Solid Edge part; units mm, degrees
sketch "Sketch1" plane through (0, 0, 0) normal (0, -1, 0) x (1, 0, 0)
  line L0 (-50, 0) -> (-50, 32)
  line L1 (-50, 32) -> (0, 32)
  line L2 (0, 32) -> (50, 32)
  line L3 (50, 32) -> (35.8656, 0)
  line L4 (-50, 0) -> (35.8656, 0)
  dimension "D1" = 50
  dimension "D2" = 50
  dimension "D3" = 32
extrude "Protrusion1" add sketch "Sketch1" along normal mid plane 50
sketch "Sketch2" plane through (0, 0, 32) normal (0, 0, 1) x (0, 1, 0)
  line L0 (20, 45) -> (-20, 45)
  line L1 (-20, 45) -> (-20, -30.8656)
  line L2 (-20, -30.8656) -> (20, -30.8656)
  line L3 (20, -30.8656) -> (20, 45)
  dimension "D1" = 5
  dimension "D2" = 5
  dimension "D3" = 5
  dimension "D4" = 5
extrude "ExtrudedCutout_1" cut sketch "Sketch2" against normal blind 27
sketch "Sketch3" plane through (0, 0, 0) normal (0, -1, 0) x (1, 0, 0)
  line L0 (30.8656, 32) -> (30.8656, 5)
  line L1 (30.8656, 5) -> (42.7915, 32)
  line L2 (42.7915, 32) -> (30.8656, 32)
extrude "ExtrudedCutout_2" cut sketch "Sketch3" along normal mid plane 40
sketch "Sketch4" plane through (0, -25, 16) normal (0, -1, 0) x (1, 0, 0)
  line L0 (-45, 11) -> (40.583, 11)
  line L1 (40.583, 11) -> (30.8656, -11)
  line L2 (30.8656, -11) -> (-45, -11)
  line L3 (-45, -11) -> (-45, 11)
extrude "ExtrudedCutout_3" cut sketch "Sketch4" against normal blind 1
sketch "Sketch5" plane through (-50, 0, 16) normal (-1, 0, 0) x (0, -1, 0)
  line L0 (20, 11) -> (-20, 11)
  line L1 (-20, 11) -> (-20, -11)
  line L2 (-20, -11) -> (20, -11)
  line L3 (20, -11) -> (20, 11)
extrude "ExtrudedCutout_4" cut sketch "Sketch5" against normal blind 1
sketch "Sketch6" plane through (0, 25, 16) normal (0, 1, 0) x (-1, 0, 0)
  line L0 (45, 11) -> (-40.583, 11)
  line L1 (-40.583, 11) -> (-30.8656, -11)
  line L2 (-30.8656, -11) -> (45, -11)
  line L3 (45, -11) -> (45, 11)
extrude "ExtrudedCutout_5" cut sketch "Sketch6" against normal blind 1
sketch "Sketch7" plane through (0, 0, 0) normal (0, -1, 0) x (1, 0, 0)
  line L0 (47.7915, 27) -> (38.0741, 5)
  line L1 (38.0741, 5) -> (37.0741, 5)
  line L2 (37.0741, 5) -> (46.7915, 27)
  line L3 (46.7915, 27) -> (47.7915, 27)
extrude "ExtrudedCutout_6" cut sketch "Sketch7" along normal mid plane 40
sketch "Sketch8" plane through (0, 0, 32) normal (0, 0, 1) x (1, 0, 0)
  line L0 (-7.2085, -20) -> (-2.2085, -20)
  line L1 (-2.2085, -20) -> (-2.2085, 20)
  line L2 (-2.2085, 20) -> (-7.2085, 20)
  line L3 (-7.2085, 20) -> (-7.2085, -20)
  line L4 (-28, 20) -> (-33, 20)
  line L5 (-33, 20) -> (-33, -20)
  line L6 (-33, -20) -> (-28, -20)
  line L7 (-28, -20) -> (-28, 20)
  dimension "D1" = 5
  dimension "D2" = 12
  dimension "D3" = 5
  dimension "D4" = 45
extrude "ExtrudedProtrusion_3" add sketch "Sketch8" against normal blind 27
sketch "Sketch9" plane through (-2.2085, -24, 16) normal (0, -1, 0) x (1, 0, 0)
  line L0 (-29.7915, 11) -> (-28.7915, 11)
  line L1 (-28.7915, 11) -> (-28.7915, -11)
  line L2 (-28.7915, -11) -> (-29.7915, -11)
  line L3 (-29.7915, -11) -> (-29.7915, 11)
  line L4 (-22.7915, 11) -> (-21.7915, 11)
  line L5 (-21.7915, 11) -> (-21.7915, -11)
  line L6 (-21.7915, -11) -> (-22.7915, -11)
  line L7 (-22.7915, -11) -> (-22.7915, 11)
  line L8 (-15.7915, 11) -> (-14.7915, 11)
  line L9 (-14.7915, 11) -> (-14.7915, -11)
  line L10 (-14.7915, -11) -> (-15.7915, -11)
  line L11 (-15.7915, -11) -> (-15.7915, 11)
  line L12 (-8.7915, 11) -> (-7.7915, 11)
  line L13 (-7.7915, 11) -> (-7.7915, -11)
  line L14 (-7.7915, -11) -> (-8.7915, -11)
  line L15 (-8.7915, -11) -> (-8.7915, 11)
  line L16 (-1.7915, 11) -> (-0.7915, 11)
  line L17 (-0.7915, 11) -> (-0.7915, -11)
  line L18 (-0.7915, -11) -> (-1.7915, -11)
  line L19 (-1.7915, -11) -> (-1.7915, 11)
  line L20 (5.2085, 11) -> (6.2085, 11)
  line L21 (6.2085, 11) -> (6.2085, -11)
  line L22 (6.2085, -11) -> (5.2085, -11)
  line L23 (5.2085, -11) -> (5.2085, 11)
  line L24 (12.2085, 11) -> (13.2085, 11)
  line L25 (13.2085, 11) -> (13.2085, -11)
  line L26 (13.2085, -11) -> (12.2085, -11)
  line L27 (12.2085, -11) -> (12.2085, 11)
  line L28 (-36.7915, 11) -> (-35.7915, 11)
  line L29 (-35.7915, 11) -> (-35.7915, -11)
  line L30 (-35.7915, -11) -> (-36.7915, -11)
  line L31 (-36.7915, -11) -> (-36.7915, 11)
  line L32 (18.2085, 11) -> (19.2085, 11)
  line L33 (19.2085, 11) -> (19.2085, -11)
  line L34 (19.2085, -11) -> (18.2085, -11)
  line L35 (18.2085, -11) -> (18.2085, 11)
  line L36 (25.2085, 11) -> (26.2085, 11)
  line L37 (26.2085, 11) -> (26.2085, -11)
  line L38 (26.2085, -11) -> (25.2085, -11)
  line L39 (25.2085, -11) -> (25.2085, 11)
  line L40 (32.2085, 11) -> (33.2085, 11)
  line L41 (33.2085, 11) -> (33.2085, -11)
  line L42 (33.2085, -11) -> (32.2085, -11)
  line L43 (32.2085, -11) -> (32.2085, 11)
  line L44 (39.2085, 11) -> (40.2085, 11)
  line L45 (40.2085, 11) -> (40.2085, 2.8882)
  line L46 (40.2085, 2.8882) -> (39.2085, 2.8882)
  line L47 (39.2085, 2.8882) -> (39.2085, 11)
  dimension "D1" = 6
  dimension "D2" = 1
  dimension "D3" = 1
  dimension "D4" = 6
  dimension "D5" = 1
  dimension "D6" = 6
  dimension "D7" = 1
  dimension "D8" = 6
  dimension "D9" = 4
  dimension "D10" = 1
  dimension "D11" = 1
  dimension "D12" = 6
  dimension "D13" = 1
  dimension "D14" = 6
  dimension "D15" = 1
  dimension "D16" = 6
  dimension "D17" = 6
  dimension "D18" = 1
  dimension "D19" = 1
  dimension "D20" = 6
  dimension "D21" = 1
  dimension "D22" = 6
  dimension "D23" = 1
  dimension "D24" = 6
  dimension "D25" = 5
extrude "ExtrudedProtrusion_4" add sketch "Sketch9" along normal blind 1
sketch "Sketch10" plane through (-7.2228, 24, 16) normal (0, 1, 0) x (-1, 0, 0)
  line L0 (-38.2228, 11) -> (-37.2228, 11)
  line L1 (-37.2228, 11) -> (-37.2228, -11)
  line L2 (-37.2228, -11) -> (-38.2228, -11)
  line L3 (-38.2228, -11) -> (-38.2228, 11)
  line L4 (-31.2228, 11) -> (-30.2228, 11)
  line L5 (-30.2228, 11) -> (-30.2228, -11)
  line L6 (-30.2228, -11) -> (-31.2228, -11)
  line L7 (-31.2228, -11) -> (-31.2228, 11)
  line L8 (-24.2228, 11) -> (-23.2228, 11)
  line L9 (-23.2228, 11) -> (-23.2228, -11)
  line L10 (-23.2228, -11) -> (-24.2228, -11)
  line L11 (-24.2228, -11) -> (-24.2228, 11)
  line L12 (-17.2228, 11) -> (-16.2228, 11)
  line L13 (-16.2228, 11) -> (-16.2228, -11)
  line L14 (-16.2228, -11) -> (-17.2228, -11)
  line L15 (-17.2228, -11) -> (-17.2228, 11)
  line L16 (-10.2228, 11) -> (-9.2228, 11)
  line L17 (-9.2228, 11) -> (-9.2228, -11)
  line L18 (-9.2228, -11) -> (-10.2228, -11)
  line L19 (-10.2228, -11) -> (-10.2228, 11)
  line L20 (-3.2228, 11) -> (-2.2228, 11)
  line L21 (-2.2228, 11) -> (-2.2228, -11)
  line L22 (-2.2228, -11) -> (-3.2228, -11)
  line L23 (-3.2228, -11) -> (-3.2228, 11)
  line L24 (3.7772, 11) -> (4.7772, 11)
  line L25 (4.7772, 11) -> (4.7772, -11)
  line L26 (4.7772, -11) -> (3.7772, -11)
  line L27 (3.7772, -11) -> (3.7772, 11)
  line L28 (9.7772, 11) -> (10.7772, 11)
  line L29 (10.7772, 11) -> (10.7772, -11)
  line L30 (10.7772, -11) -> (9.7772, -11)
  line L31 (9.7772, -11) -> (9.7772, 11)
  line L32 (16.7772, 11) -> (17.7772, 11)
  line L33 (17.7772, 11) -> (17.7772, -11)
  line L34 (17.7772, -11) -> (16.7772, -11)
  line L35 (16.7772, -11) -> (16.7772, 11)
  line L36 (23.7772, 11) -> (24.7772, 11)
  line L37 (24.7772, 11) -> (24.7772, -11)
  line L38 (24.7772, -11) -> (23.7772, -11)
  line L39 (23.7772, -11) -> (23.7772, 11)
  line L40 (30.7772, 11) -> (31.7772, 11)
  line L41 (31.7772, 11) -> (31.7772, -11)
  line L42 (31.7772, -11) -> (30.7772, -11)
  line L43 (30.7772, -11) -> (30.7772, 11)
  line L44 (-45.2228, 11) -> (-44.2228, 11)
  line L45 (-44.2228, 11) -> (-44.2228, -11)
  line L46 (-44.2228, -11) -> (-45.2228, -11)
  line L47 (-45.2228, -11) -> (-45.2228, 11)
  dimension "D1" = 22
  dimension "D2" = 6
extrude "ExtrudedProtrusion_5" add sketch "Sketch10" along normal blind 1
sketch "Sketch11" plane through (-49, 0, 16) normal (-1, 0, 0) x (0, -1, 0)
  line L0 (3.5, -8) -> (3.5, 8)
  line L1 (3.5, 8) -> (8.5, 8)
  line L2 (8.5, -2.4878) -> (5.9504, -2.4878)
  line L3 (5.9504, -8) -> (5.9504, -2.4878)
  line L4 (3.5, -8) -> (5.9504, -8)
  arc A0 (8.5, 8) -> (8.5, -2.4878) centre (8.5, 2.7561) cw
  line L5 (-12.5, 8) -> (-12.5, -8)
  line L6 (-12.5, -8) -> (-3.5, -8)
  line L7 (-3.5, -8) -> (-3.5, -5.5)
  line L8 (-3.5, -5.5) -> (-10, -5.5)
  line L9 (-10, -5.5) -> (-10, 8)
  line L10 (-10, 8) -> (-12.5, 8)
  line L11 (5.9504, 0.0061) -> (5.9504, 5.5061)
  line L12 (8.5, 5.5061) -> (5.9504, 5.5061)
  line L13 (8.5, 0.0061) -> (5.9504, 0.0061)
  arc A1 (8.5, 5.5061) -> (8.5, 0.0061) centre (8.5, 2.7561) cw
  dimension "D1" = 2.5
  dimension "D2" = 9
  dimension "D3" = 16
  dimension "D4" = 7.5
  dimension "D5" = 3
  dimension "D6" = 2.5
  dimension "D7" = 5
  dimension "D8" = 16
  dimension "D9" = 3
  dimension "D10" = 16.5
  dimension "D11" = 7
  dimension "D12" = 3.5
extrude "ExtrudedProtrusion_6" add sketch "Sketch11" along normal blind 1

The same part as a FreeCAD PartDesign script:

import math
import FreeCAD as App
import Part
import Sketcher

V = App.Vector
Q = App.Units.Quantity

doc = App.newDocument("Part")
body = doc.addObject("PartDesign::Body", "Body")

# Sketch on XZ plane
sketch1 = doc.addObject("Sketcher::SketchObject", "Sketch")
body.addObject(sketch1)
sketch1.AttachmentSupport = (doc.XZ_Plane, [""])
sketch1.MapMode = "FlatFace"
sketch1.addGeometry(Part.LineSegment(V(-50, 32, 0), V(-50, 0, 0)), False)
sketch1.addGeometry(Part.LineSegment(V(-50, 0, 0), V(36, 0, 0)), False)
sketch1.addGeometry(Part.LineSegment(V(36, 0, 0), V(50, 32, 0)), False)
sketch1.addGeometry(Part.LineSegment(V(50, 32, 0), V(-50, 32, 0)), False)
sketch1.addConstraint(Sketcher.Constraint("Coincident", 0, 2, 1, 1))
sketch1.addConstraint(Sketcher.Constraint("Coincident", 1, 2, 2, 1))
sketch1.addConstraint(Sketcher.Constraint("Coincident", 2, 2, 3, 1))
sketch1.addConstraint(Sketcher.Constraint("Coincident", 3, 2, 0, 1))
sketch1.addConstraint(Sketcher.Constraint("Vertical", 0))
sketch1.addConstraint(Sketcher.Constraint("Horizontal", 1))
sketch1.addConstraint(Sketcher.Constraint("Horizontal", 3))
sketch1.addConstraint(Sketcher.Constraint("PointOnObject", 0, 2, -1))
sketch1.addConstraint(Sketcher.Constraint("DistanceX", 0, 2, -1, 1, 50.0))
sketch1.addConstraint(Sketcher.Constraint("DistanceX", -1, 1, 2, 2, 50.0))
sketch1.addConstraint(Sketcher.Constraint("DistanceY", 0, 2, 0, 1, 32.0))
sketch1.addConstraint(Sketcher.Constraint("Angle", 2, Q("66.169 deg")))
pad1 = doc.addObject("PartDesign::Pad", "Pad")
body.addObject(pad1)
pad1.Profile = sketch1
pad1.Length = 50
pad1.Midplane = True

# Sketch on XY plane
sketch2 = doc.addObject("Sketcher::SketchObject", "Sketch001")
body.addObject(sketch2)
sketch2.AttachmentSupport = (doc.XY_Plane, [""])
sketch2.MapMode = "FlatFace"
sketch2.AttachmentOffset = App.Placement(V(0, 0, 32), App.Rotation())
sketch2.addGeometry(Part.LineSegment(V(31, 20, 0), V(-45, 20, 0)), False)
sketch2.addGeometry(Part.LineSegment(V(-45, 20, 0), V(-45, -20, 0)), False)
sketch2.addGeometry(Part.LineSegment(V(-45, -20, 0), V(31, -20, 0)), False)
sketch2.addGeometry(Part.LineSegment(V(31, -20, 0), V(31, 20, 0)), False)
sketch2.addConstraint(Sketcher.Constraint("Coincident", 0, 2, 1, 1))
sketch2.addConstraint(Sketcher.Constraint("Coincident", 1, 2, 2, 1))
sketch2.addConstraint(Sketcher.Constraint("Coincident", 2, 2, 3, 1))
sketch2.addConstraint(Sketcher.Constraint("Coincident", 3, 2, 0, 1))
sketch2.addConstraint(Sketcher.Constraint("Horizontal", 0))
sketch2.addConstraint(Sketcher.Constraint("Vertical", 1))
sketch2.addConstraint(Sketcher.Constraint("Horizontal", 2))
sketch2.addConstraint(Sketcher.Constraint("Vertical", 3))
sketch2.addConstraint(Sketcher.Constraint("DistanceY", -1, 1, 0, 2, 20.0))
sketch2.addConstraint(Sketcher.Constraint("DistanceY", 1, 2, -1, 1, 20.0))
sketch2.addConstraint(Sketcher.Constraint("DistanceX", 0, 2, -1, 1, 45.0))
sketch2.addConstraint(Sketcher.Constraint("DistanceX", 0, 2, 0, 1, 75.8656))
pocket1 = doc.addObject("PartDesign::Pocket", "Pocket")
body.addObject(pocket1)
pocket1.Profile = sketch2
pocket1.Length = 27

# Sketch on XZ plane
sketch3 = doc.addObject("Sketcher::SketchObject", "Sketch002")
body.addObject(sketch3)
sketch3.AttachmentSupport = (doc.XZ_Plane, [""])
sketch3.MapMode = "FlatFace"
sketch3.addGeometry(Part.LineSegment(V(43, 32, 0), V(31, 32, 0)), False)
sketch3.addGeometry(Part.LineSegment(V(31, 32, 0), V(31, 5, 0)), False)
sketch3.addGeometry(Part.LineSegment(V(31, 5, 0), V(43, 32, 0)), False)
sketch3.addConstraint(Sketcher.Constraint("Coincident", 0, 2, 1, 1))
sketch3.addConstraint(Sketcher.Constraint("Coincident", 1, 2, 2, 1))
sketch3.addConstraint(Sketcher.Constraint("Coincident", 2, 2, 0, 1))
sketch3.addConstraint(Sketcher.Constraint("Horizontal", 0))
sketch3.addConstraint(Sketcher.Constraint("Vertical", 1))
sketch3.addConstraint(Sketcher.Constraint("DistanceY", 1, 2, 1, 1, 27.0))
sketch3.addConstraint(Sketcher.Constraint("DistanceY", -1, 1, 0, 2, 32.0))
sketch3.addConstraint(Sketcher.Constraint("Angle", 2, Q("66.169 deg")))
sketch3.addConstraint(Sketcher.Constraint("DistanceX", -1, 1, 0, 2, 30.8656))
pocket2 = doc.addObject("PartDesign::Pocket", "Pocket001")
body.addObject(pocket2)
pocket2.Profile = sketch3
pocket2.Length = 40
pocket2.Midplane = True

# Sketch on XZ plane
sketch4 = doc.addObject("Sketcher::SketchObject", "Sketch003")
body.addObject(sketch4)
sketch4.AttachmentSupport = (doc.XZ_Plane, [""])
sketch4.MapMode = "FlatFace"
sketch4.AttachmentOffset = App.Placement(V(0, 0, 25), App.Rotation())
sketch4.addGeometry(Part.LineSegment(V(41, 27, 0), V(-45, 27, 0)), False)
sketch4.addGeometry(Part.LineSegment(V(-45, 27, 0), V(-45, 5, 0)), False)
sketch4.addGeometry(Part.LineSegment(V(-45, 5, 0), V(31, 5, 0)), False)
sketch4.addGeometry(Part.LineSegment(V(31, 5, 0), V(41, 27, 0)), False)
sketch4.addConstraint(Sketcher.Constraint("Coincident", 0, 2, 1, 1))
sketch4.addConstraint(Sketcher.Constraint("Coincident", 1, 2, 2, 1))
sketch4.addConstraint(Sketcher.Constraint("Coincident", 2, 2, 3, 1))
sketch4.addConstraint(Sketcher.Constraint("Coincident", 3, 2, 0, 1))
sketch4.addConstraint(Sketcher.Constraint("Horizontal", 0))
sketch4.addConstraint(Sketcher.Constraint("Vertical", 1))
sketch4.addConstraint(Sketcher.Constraint("Horizontal", 2))
sketch4.addConstraint(Sketcher.Constraint("DistanceY", 1, 2, 1, 1, 22.0))
sketch4.addConstraint(Sketcher.Constraint("DistanceX", 0, 2, -1, 1, 45.0))
sketch4.addConstraint(Sketcher.Constraint("DistanceY", -1, 1, 0, 2, 27.0))
sketch4.addConstraint(Sketcher.Constraint("Angle", 3, Q("66.169 deg")))
sketch4.addConstraint(Sketcher.Constraint("DistanceX", 0, 2, 0, 1, 85.583))
pocket3 = doc.addObject("PartDesign::Pocket", "Pocket002")
body.addObject(pocket3)
pocket3.Profile = sketch4
pocket3.Length = 1

# Sketch on YZ plane
sketch5 = doc.addObject("Sketcher::SketchObject", "Sketch004")
body.addObject(sketch5)
sketch5.AttachmentSupport = (doc.YZ_Plane, [""])
sketch5.MapMode = "FlatFace"
sketch5.AttachmentOffset = App.Placement(V(0, 0, -50), App.Rotation())
sketch5.addGeometry(Part.LineSegment(V(-20, 5, 0), V(-20, 27, 0)), False)
sketch5.addGeometry(Part.LineSegment(V(-20, 27, 0), V(20, 27, 0)), False)
sketch5.addGeometry(Part.LineSegment(V(20, 27, 0), V(20, 5, 0)), False)
sketch5.addGeometry(Part.LineSegment(V(20, 5, 0), V(-20, 5, 0)), False)
sketch5.addConstraint(Sketcher.Constraint("Coincident", 0, 2, 1, 1))
sketch5.addConstraint(Sketcher.Constraint("Coincident", 1, 2, 2, 1))
sketch5.addConstraint(Sketcher.Constraint("Coincident", 2, 2, 3, 1))
sketch5.addConstraint(Sketcher.Constraint("Coincident", 3, 2, 0, 1))
sketch5.addConstraint(Sketcher.Constraint("Vertical", 0))
sketch5.addConstraint(Sketcher.Constraint("Horizontal", 1))
sketch5.addConstraint(Sketcher.Constraint("Vertical", 2))
sketch5.addConstraint(Sketcher.Constraint("Horizontal", 3))
sketch5.addConstraint(Sketcher.Constraint("DistanceX", 1, 1, 1, 2, 40.0))
sketch5.addConstraint(Sketcher.Constraint("DistanceY", 0, 1, 0, 2, 22.0))
sketch5.addConstraint(Sketcher.Constraint("DistanceX", 0, 2, -1, 1, 20.0))
sketch5.addConstraint(Sketcher.Constraint("DistanceY", -1, 1, 0, 2, 27.0))
pocket4 = doc.addObject("PartDesign::Pocket", "Pocket003")
body.addObject(pocket4)
pocket4.Profile = sketch5
pocket4.Length = 1
pocket4.Reversed = True

# Sketch on XZ plane
sketch6 = doc.addObject("Sketcher::SketchObject", "Sketch005")
body.addObject(sketch6)
sketch6.AttachmentSupport = (doc.XZ_Plane, [""])
sketch6.MapMode = "FlatFace"
sketch6.AttachmentOffset = App.Placement(V(0, 0, -25), App.Rotation())
sketch6.addGeometry(Part.LineSegment(V(-45, 5, 0), V(-45, 27, 0)), False)
sketch6.addGeometry(Part.LineSegment(V(-45, 27, 0), V(41, 27, 0)), False)
sketch6.addGeometry(Part.LineSegment(V(41, 27, 0), V(31, 5, 0)), False)
sketch6.addGeometry(Part.LineSegment(V(31, 5, 0), V(-45, 5, 0)), False)
sketch6.addConstraint(Sketcher.Constraint("Coincident", 0, 2, 1, 1))
sketch6.addConstraint(Sketcher.Constraint("Coincident", 1, 2, 2, 1))
sketch6.addConstraint(Sketcher.Constraint("Coincident", 2, 2, 3, 1))
sketch6.addConstraint(Sketcher.Constraint("Coincident", 3, 2, 0, 1))
sketch6.addConstraint(Sketcher.Constraint("Vertical", 0))
sketch6.addConstraint(Sketcher.Constraint("Horizontal", 1))
sketch6.addConstraint(Sketcher.Constraint("Horizontal", 3))
sketch6.addConstraint(Sketcher.Constraint("DistanceY", 0, 1, 0, 2, 22.0))
sketch6.addConstraint(Sketcher.Constraint("DistanceX", 0, 2, -1, 1, 45.0))
sketch6.addConstraint(Sketcher.Constraint("DistanceY", -1, 1, 0, 2, 27.0))
sketch6.addConstraint(Sketcher.Constraint("Angle", 2, Q("-113.831 deg")))
sketch6.addConstraint(Sketcher.Constraint("DistanceX", 1, 1, 1, 2, 85.583))
pocket5 = doc.addObject("PartDesign::Pocket", "Pocket004")
body.addObject(pocket5)
pocket5.Profile = sketch6
pocket5.Length = 1
pocket5.Reversed = True

# Sketch on XZ plane
sketch7 = doc.addObject("Sketcher::SketchObject", "Sketch006")
body.addObject(sketch7)
sketch7.AttachmentSupport = (doc.XZ_Plane, [""])
sketch7.MapMode = "FlatFace"
sketch7.addGeometry(Part.LineSegment(V(38.1, 5, 0), V(47.8, 27, 0)), False)
sketch7.addGeometry(Part.LineSegment(V(47.8, 27, 0), V(46.8, 27, 0)), False)
sketch7.addGeometry(Part.LineSegment(V(46.8, 27, 0), V(37.1, 5, 0)), False)
sketch7.addGeometry(Part.LineSegment(V(37.1, 5, 0), V(38.1, 5, 0)), False)
sketch7.addConstraint(Sketcher.Constraint("Coincident", 0, 2, 1, 1))
sketch7.addConstraint(Sketcher.Constraint("Coincident", 1, 2, 2, 1))
sketch7.addConstraint(Sketcher.Constraint("Coincident", 2, 2, 3, 1))
sketch7.addConstraint(Sketcher.Constraint("Coincident", 3, 2, 0, 1))
sketch7.addConstraint(Sketcher.Constraint("Horizontal", 1))
sketch7.addConstraint(Sketcher.Constraint("Horizontal", 3))
sketch7.addConstraint(Sketcher.Constraint("Parallel", 0, 2))
sketch7.addConstraint(Sketcher.Constraint("DistanceX", 1, 2, 1, 1, 1.0))
sketch7.addConstraint(Sketcher.Constraint("DistanceY", -1, 1, 0, 2, 27.0))
sketch7.addConstraint(Sketcher.Constraint("DistanceY", -1, 1, 2, 2, 5.0))
sketch7.addConstraint(Sketcher.Constraint("Angle", 0, Q("66.169 deg")))
sketch7.addConstraint(Sketcher.Constraint("DistanceX", -1, 1, 2, 2, 37.074))
pocket6 = doc.addObject("PartDesign::Pocket", "Pocket005")
body.addObject(pocket6)
pocket6.Profile = sketch7
pocket6.Length = 40
pocket6.Midplane = True

# Sketch on XY plane
sketch8 = doc.addObject("Sketcher::SketchObject", "Sketch007")
body.addObject(sketch8)
sketch8.AttachmentSupport = (doc.XY_Plane, [""])
sketch8.MapMode = "FlatFace"
sketch8.AttachmentOffset = App.Placement(V(0, 0, 32), App.Rotation())
sketch8.addGeometry(Part.LineSegment(V(-7, 20, 0), V(-7, -20, 0)), False)
sketch8.addGeometry(Part.LineSegment(V(-7, -20, 0), V(-2, -20, 0)), False)
sketch8.addGeometry(Part.LineSegment(V(-2, -20, 0), V(-2, 20, 0)), False)
sketch8.addGeometry(Part.LineSegment(V(-2, 20, 0), V(-7, 20, 0)), False)
sketch8.addGeometry(Part.LineSegment(V(-28, -20, 0), V(-28, 20, 0)), False)
sketch8.addGeometry(Part.LineSegment(V(-28, 20, 0), V(-33, 20, 0)), False)
sketch8.addGeometry(Part.LineSegment(V(-33, 20, 0), V(-33, -20, 0)), False)
sketch8.addGeometry(Part.LineSegment(V(-33, -20, 0), V(-28, -20, 0)), False)
sketch8.addConstraint(Sketcher.Constraint("Coincident", 0, 2, 1, 1))
sketch8.addConstraint(Sketcher.Constraint("Coincident", 1, 2, 2, 1))
sketch8.addConstraint(Sketcher.Constraint("Coincident", 2, 2, 3, 1))
sketch8.addConstraint(Sketcher.Constraint("Coincident", 3, 2, 0, 1))
sketch8.addConstraint(Sketcher.Constraint("Coincident", 4, 2, 5, 1))
sketch8.addConstraint(Sketcher.Constraint("Coincident", 5, 2, 6, 1))
sketch8.addConstraint(Sketcher.Constraint("Coincident", 6, 2, 7, 1))
sketch8.addConstraint(Sketcher.Constraint("Coincident", 7, 2, 4, 1))
sketch8.addConstraint(Sketcher.Constraint("Vertical", 0))
sketch8.addConstraint(Sketcher.Constraint("Horizontal", 1))
sketch8.addConstraint(Sketcher.Constraint("Vertical", 2))
sketch8.addConstraint(Sketcher.Constraint("Horizontal", 3))
sketch8.addConstraint(Sketcher.Constraint("Vertical", 4))
sketch8.addConstraint(Sketcher.Constraint("Horizontal", 5))
sketch8.addConstraint(Sketcher.Constraint("Vertical", 6))
sketch8.addConstraint(Sketcher.Constraint("Horizontal", 7))
sketch8.addConstraint(Sketcher.Constraint("Horizontal", 3, 2, 4, 2))
sketch8.addConstraint(Sketcher.Constraint("Horizontal", 1, 2, 6, 2))
sketch8.addConstraint(Sketcher.Constraint("Equal", 3, 5))
sketch8.addConstraint(Sketcher.Constraint("DistanceX", 1, 1, 1, 2, 5.0))
sketch8.addConstraint(Sketcher.Constraint("DistanceY", 0, 2, 0, 1, 40.0))
sketch8.addConstraint(Sketcher.Constraint("DistanceY", 0, 2, -1, 1, 20.0))
sketch8.addConstraint(Sketcher.Constraint("DistanceX", 4, 2, -1, 1, 28.0))
sketch8.addConstraint(Sketcher.Constraint("DistanceX", 0, 2, -1, 1, 7.2085))
pad2 = doc.addObject("PartDesign::Pad", "Pad001")
body.addObject(pad2)
pad2.Profile = sketch8
pad2.Length = 27
pad2.Reversed = True

# Sketch on XZ plane
sketch9 = doc.addObject("Sketcher::SketchObject", "Sketch008")
body.addObject(sketch9)
sketch9.AttachmentSupport = (doc.XZ_Plane, [""])
sketch9.MapMode = "FlatFace"
sketch9.AttachmentOffset = App.Placement(V(0, 0, 24), App.Rotation())
sketch9.addGeometry(Part.LineSegment(V(-31, 27, 0), V(-32, 27, 0)), False)
sketch9.addGeometry(Part.LineSegment(V(-32, 27, 0), V(-32, 5, 0)), False)
sketch9.addGeometry(Part.LineSegment(V(-32, 5, 0), V(-31, 5, 0)), False)
sketch9.addGeometry(Part.LineSegment(V(-31, 5, 0), V(-31, 27, 0)), False)
sketch9.addGeometry(Part.LineSegment(V(-24, 27, 0), V(-25, 27, 0)), False)
sketch9.addGeometry(Part.LineSegment(V(-25, 27, 0), V(-25, 5, 0)), False)
sketch9.addGeometry(Part.LineSegment(V(-25, 5, 0), V(-24, 5, 0)), False)
sketch9.addGeometry(Part.LineSegment(V(-24, 5, 0), V(-24, 27, 0)), False)
sketch9.addGeometry(Part.LineSegment(V(-17, 27, 0), V(-18, 27, 0)), False)
sketch9.addGeometry(Part.LineSegment(V(-18, 27, 0), V(-18, 5, 0)), False)
sketch9.addGeometry(Part.LineSegment(V(-18, 5, 0), V(-17, 5, 0)), False)
sketch9.addGeometry(Part.LineSegment(V(-17, 5, 0), V(-17, 27, 0)), False)
sketch9.addGeometry(Part.LineSegment(V(-10, 27, 0), V(-11, 27, 0)), False)
sketch9.addGeometry(Part.LineSegment(V(-11, 27, 0), V(-11, 5, 0)), False)
sketch9.addGeometry(Part.LineSegment(V(-11, 5, 0), V(-10, 5, 0)), False)
sketch9.addGeometry(Part.LineSegment(V(-10, 5, 0), V(-10, 27, 0)), False)
sketch9.addGeometry(Part.LineSegment(V(-3, 27, 0), V(-4, 27, 0)), False)
sketch9.addGeometry(Part.LineSegment(V(-4, 27, 0), V(-4, 5, 0)), False)
sketch9.addGeometry(Part.LineSegment(V(-4, 5, 0), V(-3, 5, 0)), False)
sketch9.addGeometry(Part.LineSegment(V(-3, 5, 0), V(-3, 27, 0)), False)
sketch9.addGeometry(Part.LineSegment(V(4, 27, 0), V(3, 27, 0)), False)
sketch9.addGeometry(Part.LineSegment(V(3, 27, 0), V(3, 5, 0)), False)
sketch9.addGeometry(Part.LineSegment(V(3, 5, 0), V(4, 5, 0)), False)
sketch9.addGeometry(Part.LineSegment(V(4, 5, 0), V(4, 27, 0)), False)
sketch9.addGeometry(Part.LineSegment(V(11, 27, 0), V(10, 27, 0)), False)
sketch9.addGeometry(Part.LineSegment(V(10, 27, 0), V(10, 5, 0)), False)
sketch9.addGeometry(Part.LineSegment(V(10, 5, 0), V(11, 5, 0)), False)
sketch9.addGeometry(Part.LineSegment(V(11, 5, 0), V(11, 27, 0)), False)
sketch9.addGeometry(Part.LineSegment(V(-38, 27, 0), V(-39, 27, 0)), False)
sketch9.addGeometry(Part.LineSegment(V(-39, 27, 0), V(-39, 5, 0)), False)
sketch9.addGeometry(Part.LineSegment(V(-39, 5, 0), V(-38, 5, 0)), False)
sketch9.addGeometry(Part.LineSegment(V(-38, 5, 0), V(-38, 27, 0)), False)
sketch9.addGeometry(Part.LineSegment(V(17, 27, 0), V(16, 27, 0)), False)
sketch9.addGeometry(Part.LineSegment(V(16, 27, 0), V(16, 5, 0)), False)
sketch9.addGeometry(Part.LineSegment(V(16, 5, 0), V(17, 5, 0)), False)
sketch9.addGeometry(Part.LineSegment(V(17, 5, 0), V(17, 27, 0)), False)
sketch9.addGeometry(Part.LineSegment(V(24, 27, 0), V(23, 27, 0)), False)
sketch9.addGeometry(Part.LineSegment(V(23, 27, 0), V(23, 5, 0)), False)
sketch9.addGeometry(Part.LineSegment(V(23, 5, 0), V(24, 5, 0)), False)
sketch9.addGeometry(Part.LineSegment(V(24, 5, 0), V(24, 27, 0)), False)
sketch9.addGeometry(Part.LineSegment(V(31, 27, 0), V(30, 27, 0)), False)
sketch9.addGeometry(Part.LineSegment(V(30, 27, 0), V(30, 5, 0)), False)
sketch9.addGeometry(Part.LineSegment(V(30, 5, 0), V(31, 5, 0)), False)
sketch9.addGeometry(Part.LineSegment(V(31, 5, 0), V(31, 27, 0)), False)
sketch9.addGeometry(Part.LineSegment(V(38, 27, 0), V(37, 27, 0)), False)
sketch9.addGeometry(Part.LineSegment(V(37, 27, 0), V(37, 18.9, 0)), False)
sketch9.addGeometry(Part.LineSegment(V(37, 18.9, 0), V(38, 18.9, 0)), False)
sketch9.addGeometry(Part.LineSegment(V(38, 18.9, 0), V(38, 27, 0)), False)
sketch9.addConstraint(Sketcher.Constraint("Coincident", 0, 2, 1, 1))
sketch9.addConstraint(Sketcher.Constraint("Coincident", 1, 2, 2, 1))
sketch9.addConstraint(Sketcher.Constraint("Coincident", 2, 2, 3, 1))
sketch9.addConstraint(Sketcher.Constraint("Coincident", 3, 2, 0, 1))
sketch9.addConstraint(Sketcher.Constraint("Coincident", 4, 2, 5, 1))
sketch9.addConstraint(Sketcher.Constraint("Coincident", 5, 2, 6, 1))
sketch9.addConstraint(Sketcher.Constraint("Coincident", 6, 2, 7, 1))
sketch9.addConstraint(Sketcher.Constraint("Coincident", 7, 2, 4, 1))
sketch9.addConstraint(Sketcher.Constraint("Coincident", 8, 2, 9, 1))
sketch9.addConstraint(Sketcher.Constraint("Coincident", 9, 2, 10, 1))
sketch9.addConstraint(Sketcher.Constraint("Coincident", 10, 2, 11, 1))
sketch9.addConstraint(Sketcher.Constraint("Coincident", 11, 2, 8, 1))
sketch9.addConstraint(Sketcher.Constraint("Coincident", 12, 2, 13, 1))
sketch9.addConstraint(Sketcher.Constraint("Coincident", 13, 2, 14, 1))
sketch9.addConstraint(Sketcher.Constraint("Coincident", 14, 2, 15, 1))
sketch9.addConstraint(Sketcher.Constraint("Coincident", 15, 2, 12, 1))
sketch9.addConstraint(Sketcher.Constraint("Coincident", 16, 2, 17, 1))
sketch9.addConstraint(Sketcher.Constraint("Coincident", 17, 2, 18, 1))
sketch9.addConstraint(Sketcher.Constraint("Coincident", 18, 2, 19, 1))
sketch9.addConstraint(Sketcher.Constraint("Coincident", 19, 2, 16, 1))
sketch9.addConstraint(Sketcher.Constraint("Coincident", 20, 2, 21, 1))
sketch9.addConstraint(Sketcher.Constraint("Coincident", 21, 2, 22, 1))
sketch9.addConstraint(Sketcher.Constraint("Coincident", 22, 2, 23, 1))
sketch9.addConstraint(Sketcher.Constraint("Coincident", 23, 2, 20, 1))
sketch9.addConstraint(Sketcher.Constraint("Coincident", 24, 2, 25, 1))
sketch9.addConstraint(Sketcher.Constraint("Coincident", 25, 2, 26, 1))
sketch9.addConstraint(Sketcher.Constraint("Coincident", 26, 2, 27, 1))
sketch9.addConstraint(Sketcher.Constraint("Coincident", 27, 2, 24, 1))
sketch9.addConstraint(Sketcher.Constraint("Coincident", 28, 2, 29, 1))
sketch9.addConstraint(Sketcher.Constraint("Coincident", 29, 2, 30, 1))
sketch9.addConstraint(Sketcher.Constraint("Coincident", 30, 2, 31, 1))
sketch9.addConstraint(Sketcher.Constraint("Coincident", 31, 2, 28, 1))
sketch9.addConstraint(Sketcher.Constraint("Coincident", 32, 2, 33, 1))
sketch9.addConstraint(Sketcher.Constraint("Coincident", 33, 2, 34, 1))
sketch9.addConstraint(Sketcher.Constraint("Coincident", 34, 2, 35, 1))
sketch9.addConstraint(Sketcher.Constraint("Coincident", 35, 2, 32, 1))
sketch9.addConstraint(Sketcher.Constraint("Coincident", 36, 2, 37, 1))
sketch9.addConstraint(Sketcher.Constraint("Coincident", 37, 2, 38, 1))
sketch9.addConstraint(Sketcher.Constraint("Coincident", 38, 2, 39, 1))
sketch9.addConstraint(Sketcher.Constraint("Coincident", 39, 2, 36, 1))
sketch9.addConstraint(Sketcher.Constraint("Coincident", 40, 2, 41, 1))
sketch9.addConstraint(Sketcher.Constraint("Coincident", 41, 2, 42, 1))
sketch9.addConstraint(Sketcher.Constraint("Coincident", 42, 2, 43, 1))
sketch9.addConstraint(Sketcher.Constraint("Coincident", 43, 2, 40, 1))
sketch9.addConstraint(Sketcher.Constraint("Coincident", 44, 2, 45, 1))
sketch9.addConstraint(Sketcher.Constraint("Coincident", 45, 2, 46, 1))
sketch9.addConstraint(Sketcher.Constraint("Coincident", 46, 2, 47, 1))
sketch9.addConstraint(Sketcher.Constraint("Coincident", 47, 2, 44, 1))
sketch9.addConstraint(Sketcher.Constraint("Horizontal", 0))
sketch9.addConstraint(Sketcher.Constraint("Vertical", 1))
sketch9.addConstraint(Sketcher.Constraint("Horizontal", 2))
sketch9.addConstraint(Sketcher.Constraint("Vertical", 3))
sketch9.addConstraint(Sketcher.Constraint("Horizontal", 4))
sketch9.addConstraint(Sketcher.Constraint("Vertical", 5))
sketch9.addConstraint(Sketcher.Constraint("Horizontal", 6))
sketch9.addConstraint(Sketcher.Constraint("Vertical", 7))
sketch9.addConstraint(Sketcher.Constraint("Horizontal", 8))
sketch9.addConstraint(Sketcher.Constraint("Vertical", 9))
sketch9.addConstraint(Sketcher.Constraint("Horizontal", 10))
sketch9.addConstraint(Sketcher.Constraint("Vertical", 11))
sketch9.addConstraint(Sketcher.Constraint("Horizontal", 12))
sketch9.addConstraint(Sketcher.Constraint("Vertical", 13))
sketch9.addConstraint(Sketcher.Constraint("Horizontal", 14))
sketch9.addConstraint(Sketcher.Constraint("Vertical", 15))
sketch9.addConstraint(Sketcher.Constraint("Horizontal", 16))
sketch9.addConstraint(Sketcher.Constraint("Vertical", 17))
sketch9.addConstraint(Sketcher.Constraint("Horizontal", 18))
sketch9.addConstraint(Sketcher.Constraint("Vertical", 19))
sketch9.addConstraint(Sketcher.Constraint("Horizontal", 20))
sketch9.addConstraint(Sketcher.Constraint("Vertical", 21))
sketch9.addConstraint(Sketcher.Constraint("Horizontal", 22))
sketch9.addConstraint(Sketcher.Constraint("Vertical", 23))
sketch9.addConstraint(Sketcher.Constraint("Horizontal", 24))
sketch9.addConstraint(Sketcher.Constraint("Vertical", 25))
sketch9.addConstraint(Sketcher.Constraint("Horizontal", 26))
sketch9.addConstraint(Sketcher.Constraint("Vertical", 27))
sketch9.addConstraint(Sketcher.Constraint("Horizontal", 28))
sketch9.addConstraint(Sketcher.Constraint("Vertical", 29))
sketch9.addConstraint(Sketcher.Constraint("Horizontal", 30))
sketch9.addConstraint(Sketcher.Constraint("Vertical", 31))
sketch9.addConstraint(Sketcher.Constraint("Horizontal", 32))
sketch9.addConstraint(Sketcher.Constraint("Vertical", 33))
sketch9.addConstraint(Sketcher.Constraint("Horizontal", 34))
sketch9.addConstraint(Sketcher.Constraint("Vertical", 35))
sketch9.addConstraint(Sketcher.Constraint("Horizontal", 36))
sketch9.addConstraint(Sketcher.Constraint("Vertical", 37))
sketch9.addConstraint(Sketcher.Constraint("Horizontal", 38))
sketch9.addConstraint(Sketcher.Constraint("Vertical", 39))
sketch9.addConstraint(Sketcher.Constraint("Horizontal", 40))
sketch9.addConstraint(Sketcher.Constraint("Vertical", 41))
sketch9.addConstraint(Sketcher.Constraint("Horizontal", 42))
sketch9.addConstraint(Sketcher.Constraint("Vertical", 43))
sketch9.addConstraint(Sketcher.Constraint("Horizontal", 44))
sketch9.addConstraint(Sketcher.Constraint("Vertical", 45))
sketch9.addConstraint(Sketcher.Constraint("Horizontal", 46))
sketch9.addConstraint(Sketcher.Constraint("Vertical", 47))
sketch9.addConstraint(Sketcher.Constraint("Symmetric", 19, 2, 20, 2, -2))
sketch9.addConstraint(Sketcher.Constraint("Symmetric", 17, 2, 22, 2, -2))
sketch9.addConstraint(Sketcher.Constraint("Symmetric", 15, 2, 24, 2, -2))
sketch9.addConstraint(Sketcher.Constraint("Symmetric", 13, 2, 26, 2, -2))
sketch9.addConstraint(Sketcher.Constraint("Symmetric", 10, 2, 34, 2, -2))
sketch9.addConstraint(Sketcher.Constraint("Symmetric", 6, 2, 38, 2, -2))
sketch9.addConstraint(Sketcher.Constraint("Symmetric", 2, 2, 42, 2, -2))
sketch9.addConstraint(Sketcher.Constraint("Symmetric", 31, 2, 47, 2, -2))
sketch9.addConstraint(Sketcher.Constraint("Horizontal", 3, 2, 4, 2))
sketch9.addConstraint(Sketcher.Constraint("Horizontal", 2, 2, 5, 2))
sketch9.addConstraint(Sketcher.Constraint("Horizontal", 7, 2, 8, 2))
sketch9.addConstraint(Sketcher.Constraint("Horizontal", 6, 2, 9, 2))
sketch9.addConstraint(Sketcher.Constraint("Horizontal", 11, 2, 12, 2))
sketch9.addConstraint(Sketcher.Constraint("Horizontal", 10, 2, 13, 2))
sketch9.addConstraint(Sketcher.Constraint("Horizontal", 15, 2, 16, 2))
sketch9.addConstraint(Sketcher.Constraint("Horizontal", 14, 2, 17, 2))
sketch9.addConstraint(Sketcher.Constraint("Horizontal", 27, 2, 28, 2))
sketch9.addConstraint(Sketcher.Constraint("Horizontal", 26, 2, 29, 2))
sketch9.addConstraint(Sketcher.Constraint("Horizontal", 31, 2, 32, 2))
sketch9.addConstraint(Sketcher.Constraint("Horizontal", 35, 2, 36, 2))
sketch9.addConstraint(Sketcher.Constraint("Horizontal", 39, 2, 40, 2))
sketch9.addConstraint(Sketcher.Constraint("Equal", 2, 4))
sketch9.addConstraint(Sketcher.Constraint("Equal", 6, 8))
sketch9.addConstraint(Sketcher.Constraint("Equal", 10, 12))
sketch9.addConstraint(Sketcher.Constraint("Equal", 14, 16))
sketch9.addConstraint(Sketcher.Constraint("Equal", 26, 28))
sketch9.addConstraint(Sketcher.Constraint("Equal", 30, 32))
sketch9.addConstraint(Sketcher.Constraint("Equal", 34, 36))
sketch9.addConstraint(Sketcher.Constraint("Equal", 38, 40))
sketch9.addConstraint(Sketcher.Constraint("Equal", 42, 44))
sketch9.addConstraint(Sketcher.Constraint("DistanceX", 0, 2, 0, 1, 1.0))
sketch9.addConstraint(Sketcher.Constraint("DistanceY", 1, 2, 1, 1, 22.0))
sketch9.addConstraint(Sketcher.Constraint("DistanceX", 0, 2, -1, 1, 32.0))
sketch9.addConstraint(Sketcher.Constraint("DistanceY", -1, 1, 0, 2, 27.0))
sketch9.addConstraint(Sketcher.Constraint("DistanceX", 4, 2, -1, 1, 25.0))
sketch9.addConstraint(Sketcher.Constraint("DistanceX", 8, 2, -1, 1, 18.0))
sketch9.addConstraint(Sketcher.Constraint("DistanceX", 12, 2, -1, 1, 11.0))
sketch9.addConstraint(Sketcher.Constraint("DistanceX", 16, 2, -1, 1, 4.0))
sketch9.addConstraint(Sketcher.Constraint("DistanceX", 28, 2, -1, 1, 39.0))
sketch9.addConstraint(Sketcher.Constraint("DistanceY", 45, 2, 45, 1, 8.1118))
pad3 = doc.addObject("PartDesign::Pad", "Pad002")
body.addObject(pad3)
pad3.Profile = sketch9
pad3.Length = 1

# Sketch on XZ plane
sketch10 = doc.addObject("Sketcher::SketchObject", "Sketch009")
body.addObject(sketch10)
sketch10.AttachmentSupport = (doc.XZ_Plane, [""])
sketch10.MapMode = "FlatFace"
sketch10.AttachmentOffset = App.Placement(V(0, 0, -24), App.Rotation())
sketch10.addGeometry(Part.LineSegment(V(30, 27, 0), V(31, 27, 0)), False)
sketch10.addGeometry(Part.LineSegment(V(31, 27, 0), V(31, 5, 0)), False)
sketch10.addGeometry(Part.LineSegment(V(31, 5, 0), V(30, 5, 0)), False)
sketch10.addGeometry(Part.LineSegment(V(30, 5, 0), V(30, 27, 0)), False)
sketch10.addGeometry(Part.LineSegment(V(23, 27, 0), V(24, 27, 0)), False)
sketch10.addGeometry(Part.LineSegment(V(24, 27, 0), V(24, 5, 0)), False)
sketch10.addGeometry(Part.LineSegment(V(24, 5, 0), V(23, 5, 0)), False)
sketch10.addGeometry(Part.LineSegment(V(23, 5, 0), V(23, 27, 0)), False)
sketch10.addGeometry(Part.LineSegment(V(16, 27, 0), V(17, 27, 0)), False)
sketch10.addGeometry(Part.LineSegment(V(17, 27, 0), V(17, 5, 0)), False)
sketch10.addGeometry(Part.LineSegment(V(17, 5, 0), V(16, 5, 0)), False)
sketch10.addGeometry(Part.LineSegment(V(16, 5, 0), V(16, 27, 0)), False)
sketch10.addGeometry(Part.LineSegment(V(9, 27, 0), V(10, 27, 0)), False)
sketch10.addGeometry(Part.LineSegment(V(10, 27, 0), V(10, 5, 0)), False)
sketch10.addGeometry(Part.LineSegment(V(10, 5, 0), V(9, 5, 0)), False)
sketch10.addGeometry(Part.LineSegment(V(9, 5, 0), V(9, 27, 0)), False)
sketch10.addGeometry(Part.LineSegment(V(2, 27, 0), V(3, 27, 0)), False)
sketch10.addGeometry(Part.LineSegment(V(3, 27, 0), V(3, 5, 0)), False)
sketch10.addGeometry(Part.LineSegment(V(3, 5, 0), V(2, 5, 0)), False)
sketch10.addGeometry(Part.LineSegment(V(2, 5, 0), V(2, 27, 0)), False)
sketch10.addGeometry(Part.LineSegment(V(-5, 27, 0), V(-4, 27, 0)), False)
sketch10.addGeometry(Part.LineSegment(V(-4, 27, 0), V(-4, 5, 0)), False)
sketch10.addGeometry(Part.LineSegment(V(-4, 5, 0), V(-5, 5, 0)), False)
sketch10.addGeometry(Part.LineSegment(V(-5, 5, 0), V(-5, 27, 0)), False)
sketch10.addGeometry(Part.LineSegment(V(-12, 27, 0), V(-11, 27, 0)), False)
sketch10.addGeometry(Part.LineSegment(V(-11, 27, 0), V(-11, 5, 0)), False)
sketch10.addGeometry(Part.LineSegment(V(-11, 5, 0), V(-12, 5, 0)), False)
sketch10.addGeometry(Part.LineSegment(V(-12, 5, 0), V(-12, 27, 0)), False)
sketch10.addGeometry(Part.LineSegment(V(-18, 27, 0), V(-17, 27, 0)), False)
sketch10.addGeometry(Part.LineSegment(V(-17, 27, 0), V(-17, 5, 0)), False)
sketch10.addGeometry(Part.LineSegment(V(-17, 5, 0), V(-18, 5, 0)), False)
sketch10.addGeometry(Part.LineSegment(V(-18, 5, 0), V(-18, 27, 0)), False)
sketch10.addGeometry(Part.LineSegment(V(-25, 27, 0), V(-24, 27, 0)), False)
sketch10.addGeometry(Part.LineSegment(V(-24, 27, 0), V(-24, 5, 0)), False)
sketch10.addGeometry(Part.LineSegment(V(-24, 5, 0), V(-25, 5, 0)), False)
sketch10.addGeometry(Part.LineSegment(V(-25, 5, 0), V(-25, 27, 0)), False)
sketch10.addGeometry(Part.LineSegment(V(-32, 27, 0), V(-31, 27, 0)), False)
sketch10.addGeometry(Part.LineSegment(V(-31, 27, 0), V(-31, 5, 0)), False)
sketch10.addGeometry(Part.LineSegment(V(-31, 5, 0), V(-32, 5, 0)), False)
sketch10.addGeometry(Part.LineSegment(V(-32, 5, 0), V(-32, 27, 0)), False)
sketch10.addGeometry(Part.LineSegment(V(-39, 27, 0), V(-38, 27, 0)), False)
sketch10.addGeometry(Part.LineSegment(V(-38, 27, 0), V(-38, 5, 0)), False)
sketch10.addGeometry(Part.LineSegment(V(-38, 5, 0), V(-39, 5, 0)), False)
sketch10.addGeometry(Part.LineSegment(V(-39, 5, 0), V(-39, 27, 0)), False)
sketch10.addGeometry(Part.LineSegment(V(37, 27, 0), V(38, 27, 0)), False)
sketch10.addGeometry(Part.LineSegment(V(38, 27, 0), V(38, 5, 0)), False)
sketch10.addGeometry(Part.LineSegment(V(38, 5, 0), V(37, 5, 0)), False)
sketch10.addGeometry(Part.LineSegment(V(37, 5, 0), V(37, 27, 0)), False)
sketch10.addConstraint(Sketcher.Constraint("Coincident", 0, 2, 1, 1))
sketch10.addConstraint(Sketcher.Constraint("Coincident", 1, 2, 2, 1))
sketch10.addConstraint(Sketcher.Constraint("Coincident", 2, 2, 3, 1))
sketch10.addConstraint(Sketcher.Constraint("Coincident", 3, 2, 0, 1))
sketch10.addConstraint(Sketcher.Constraint("Coincident", 4, 2, 5, 1))
sketch10.addConstraint(Sketcher.Constraint("Coincident", 5, 2, 6, 1))
sketch10.addConstraint(Sketcher.Constraint("Coincident", 6, 2, 7, 1))
sketch10.addConstraint(Sketcher.Constraint("Coincident", 7, 2, 4, 1))
sketch10.addConstraint(Sketcher.Constraint("Coincident", 8, 2, 9, 1))
sketch10.addConstraint(Sketcher.Constraint("Coincident", 9, 2, 10, 1))
sketch10.addConstraint(Sketcher.Constraint("Coincident", 10, 2, 11, 1))
sketch10.addConstraint(Sketcher.Constraint("Coincident", 11, 2, 8, 1))
sketch10.addConstraint(Sketcher.Constraint("Coincident", 12, 2, 13, 1))
sketch10.addConstraint(Sketcher.Constraint("Coincident", 13, 2, 14, 1))
sketch10.addConstraint(Sketcher.Constraint("Coincident", 14, 2, 15, 1))
sketch10.addConstraint(Sketcher.Constraint("Coincident", 15, 2, 12, 1))
sketch10.addConstraint(Sketcher.Constraint("Coincident", 16, 2, 17, 1))
sketch10.addConstraint(Sketcher.Constraint("Coincident", 17, 2, 18, 1))
sketch10.addConstraint(Sketcher.Constraint("Coincident", 18, 2, 19, 1))
sketch10.addConstraint(Sketcher.Constraint("Coincident", 19, 2, 16, 1))
sketch10.addConstraint(Sketcher.Constraint("Coincident", 20, 2, 21, 1))
sketch10.addConstraint(Sketcher.Constraint("Coincident", 21, 2, 22, 1))
sketch10.addConstraint(Sketcher.Constraint("Coincident", 22, 2, 23, 1))
sketch10.addConstraint(Sketcher.Constraint("Coincident", 23, 2, 20, 1))
sketch10.addConstraint(Sketcher.Constraint("Coincident", 24, 2, 25, 1))
sketch10.addConstraint(Sketcher.Constraint("Coincident", 25, 2, 26, 1))
sketch10.addConstraint(Sketcher.Constraint("Coincident", 26, 2, 27, 1))
sketch10.addConstraint(Sketcher.Constraint("Coincident", 27, 2, 24, 1))
sketch10.addConstraint(Sketcher.Constraint("Coincident", 28, 2, 29, 1))
sketch10.addConstraint(Sketcher.Constraint("Coincident", 29, 2, 30, 1))
sketch10.addConstraint(Sketcher.Constraint("Coincident", 30, 2, 31, 1))
sketch10.addConstraint(Sketcher.Constraint("Coincident", 31, 2, 28, 1))
sketch10.addConstraint(Sketcher.Constraint("Coincident", 32, 2, 33, 1))
sketch10.addConstraint(Sketcher.Constraint("Coincident", 33, 2, 34, 1))
sketch10.addConstraint(Sketcher.Constraint("Coincident", 34, 2, 35, 1))
sketch10.addConstraint(Sketcher.Constraint("Coincident", 35, 2, 32, 1))
sketch10.addConstraint(Sketcher.Constraint("Coincident", 36, 2, 37, 1))
sketch10.addConstraint(Sketcher.Constraint("Coincident", 37, 2, 38, 1))
sketch10.addConstraint(Sketcher.Constraint("Coincident", 38, 2, 39, 1))
sketch10.addConstraint(Sketcher.Constraint("Coincident", 39, 2, 36, 1))
sketch10.addConstraint(Sketcher.Constraint("Coincident", 40, 2, 41, 1))
sketch10.addConstraint(Sketcher.Constraint("Coincident", 41, 2, 42, 1))
sketch10.addConstraint(Sketcher.Constraint("Coincident", 42, 2, 43, 1))
sketch10.addConstraint(Sketcher.Constraint("Coincident", 43, 2, 40, 1))
sketch10.addConstraint(Sketcher.Constraint("Coincident", 44, 2, 45, 1))
sketch10.addConstraint(Sketcher.Constraint("Coincident", 45, 2, 46, 1))
sketch10.addConstraint(Sketcher.Constraint("Coincident", 46, 2, 47, 1))
sketch10.addConstraint(Sketcher.Constraint("Coincident", 47, 2, 44, 1))
sketch10.addConstraint(Sketcher.Constraint("Horizontal", 0))
sketch10.addConstraint(Sketcher.Constraint("Vertical", 1))
sketch10.addConstraint(Sketcher.Constraint("Horizontal", 2))
sketch10.addConstraint(Sketcher.Constraint("Vertical", 3))
sketch10.addConstraint(Sketcher.Constraint("Horizontal", 4))
sketch10.addConstraint(Sketcher.Constraint("Vertical", 5))
sketch10.addConstraint(Sketcher.Constraint("Horizontal", 6))
sketch10.addConstraint(Sketcher.Constraint("Vertical", 7))
sketch10.addConstraint(Sketcher.Constraint("Horizontal", 8))
sketch10.addConstraint(Sketcher.Constraint("Vertical", 9))
sketch10.addConstraint(Sketcher.Constraint("Horizontal", 10))
sketch10.addConstraint(Sketcher.Constraint("Vertical", 11))
sketch10.addConstraint(Sketcher.Constraint("Horizontal", 12))
sketch10.addConstraint(Sketcher.Constraint("Vertical", 13))
sketch10.addConstraint(Sketcher.Constraint("Horizontal", 14))
sketch10.addConstraint(Sketcher.Constraint("Vertical", 15))
sketch10.addConstraint(Sketcher.Constraint("Horizontal", 16))
sketch10.addConstraint(Sketcher.Constraint("Vertical", 17))
sketch10.addConstraint(Sketcher.Constraint("Horizontal", 18))
sketch10.addConstraint(Sketcher.Constraint("Vertical", 19))
sketch10.addConstraint(Sketcher.Constraint("Horizontal", 20))
sketch10.addConstraint(Sketcher.Constraint("Vertical", 21))
sketch10.addConstraint(Sketcher.Constraint("Horizontal", 22))
sketch10.addConstraint(Sketcher.Constraint("Vertical", 23))
sketch10.addConstraint(Sketcher.Constraint("Horizontal", 24))
sketch10.addConstraint(Sketcher.Constraint("Vertical", 25))
sketch10.addConstraint(Sketcher.Constraint("Horizontal", 26))
sketch10.addConstraint(Sketcher.Constraint("Vertical", 27))
sketch10.addConstraint(Sketcher.Constraint("Horizontal", 28))
sketch10.addConstraint(Sketcher.Constraint("Vertical", 29))
sketch10.addConstraint(Sketcher.Constraint("Horizontal", 30))
sketch10.addConstraint(Sketcher.Constraint("Vertical", 31))
sketch10.addConstraint(Sketcher.Constraint("Horizontal", 32))
sketch10.addConstraint(Sketcher.Constraint("Vertical", 33))
sketch10.addConstraint(Sketcher.Constraint("Horizontal", 34))
sketch10.addConstraint(Sketcher.Constraint("Vertical", 35))
sketch10.addConstraint(Sketcher.Constraint("Horizontal", 36))
sketch10.addConstraint(Sketcher.Constraint("Vertical", 37))
sketch10.addConstraint(Sketcher.Constraint("Horizontal", 38))
sketch10.addConstraint(Sketcher.Constraint("Vertical", 39))
sketch10.addConstraint(Sketcher.Constraint("Horizontal", 40))
sketch10.addConstraint(Sketcher.Constraint("Vertical", 41))
sketch10.addConstraint(Sketcher.Constraint("Horizontal", 42))
sketch10.addConstraint(Sketcher.Constraint("Vertical", 43))
sketch10.addConstraint(Sketcher.Constraint("Horizontal", 44))
sketch10.addConstraint(Sketcher.Constraint("Vertical", 45))
sketch10.addConstraint(Sketcher.Constraint("Horizontal", 46))
sketch10.addConstraint(Sketcher.Constraint("Vertical", 47))
sketch10.addConstraint(Sketcher.Constraint("Symmetric", 8, 2, 28, 2, -2))
sketch10.addConstraint(Sketcher.Constraint("Symmetric", 4, 2, 32, 2, -2))
sketch10.addConstraint(Sketcher.Constraint("Symmetric", 0, 2, 36, 2, -2))
sketch10.addConstraint(Sketcher.Constraint("Symmetric", 40, 2, 44, 2, -2))
sketch10.addConstraint(Sketcher.Constraint("Horizontal", 3, 2, 4, 2))
sketch10.addConstraint(Sketcher.Constraint("Horizontal", 2, 2, 5, 2))
sketch10.addConstraint(Sketcher.Constraint("Horizontal", 7, 2, 8, 2))
sketch10.addConstraint(Sketcher.Constraint("Horizontal", 6, 2, 9, 2))
sketch10.addConstraint(Sketcher.Constraint("Horizontal", 11, 2, 12, 2))
sketch10.addConstraint(Sketcher.Constraint("Horizontal", 10, 2, 13, 2))
sketch10.addConstraint(Sketcher.Constraint("Horizontal", 15, 2, 16, 2))
sketch10.addConstraint(Sketcher.Constraint("Horizontal", 14, 2, 17, 2))
sketch10.addConstraint(Sketcher.Constraint("Horizontal", 19, 2, 20, 2))
sketch10.addConstraint(Sketcher.Constraint("Horizontal", 18, 2, 21, 2))
sketch10.addConstraint(Sketcher.Constraint("Horizontal", 23, 2, 24, 2))
sketch10.addConstraint(Sketcher.Constraint("Horizontal", 22, 2, 25, 2))
sketch10.addConstraint(Sketcher.Constraint("Horizontal", 26, 2, 29, 2))
sketch10.addConstraint(Sketcher.Constraint("Horizontal", 30, 2, 33, 2))
sketch10.addConstraint(Sketcher.Constraint("Horizontal", 34, 2, 37, 2))
sketch10.addConstraint(Sketcher.Constraint("Horizontal", 39, 2, 40, 2))
sketch10.addConstraint(Sketcher.Constraint("Horizontal", 38, 2, 41, 2))
sketch10.addConstraint(Sketcher.Constraint("Horizontal", 42, 2, 45, 2))
sketch10.addConstraint(Sketcher.Constraint("Equal", 2, 4))
sketch10.addConstraint(Sketcher.Constraint("Equal", 6, 8))
sketch10.addConstraint(Sketcher.Constraint("Equal", 10, 12))
sketch10.addConstraint(Sketcher.Constraint("Equal", 14, 16))
sketch10.addConstraint(Sketcher.Constraint("Equal", 18, 20))
sketch10.addConstraint(Sketcher.Constraint("Equal", 22, 24))
sketch10.addConstraint(Sketcher.Constraint("Equal", 26, 28))
sketch10.addConstraint(Sketcher.Constraint("Equal", 30, 32))
sketch10.addConstraint(Sketcher.Constraint("Equal", 34, 36))
sketch10.addConstraint(Sketcher.Constraint("Equal", 38, 40))
sketch10.addConstraint(Sketcher.Constraint("Equal", 42, 44))
sketch10.addConstraint(Sketcher.Constraint("DistanceX", 0, 1, 0, 2, 1.0))
sketch10.addConstraint(Sketcher.Constraint("DistanceY", 1, 2, 1, 1, 22.0))
sketch10.addConstraint(Sketcher.Constraint("DistanceX", -1, 1, 0, 2, 31.0))
sketch10.addConstraint(Sketcher.Constraint("DistanceY", -1, 1, 0, 2, 27.0))
sketch10.addConstraint(Sketcher.Constraint("DistanceX", -1, 1, 4, 2, 24.0))
sketch10.addConstraint(Sketcher.Constraint("DistanceX", -1, 1, 8, 2, 17.0))
sketch10.addConstraint(Sketcher.Constraint("DistanceX", -1, 1, 12, 2, 10.0))
sketch10.addConstraint(Sketcher.Constraint("DistanceX", -1, 1, 16, 2, 3.0))
sketch10.addConstraint(Sketcher.Constraint("DistanceX", 20, 2, -1, 1, 4.0))
sketch10.addConstraint(Sketcher.Constraint("DistanceX", 24, 2, -1, 1, 11.0))
sketch10.addConstraint(Sketcher.Constraint("DistanceX", 40, 2, -1, 1, 38.0))
pad4 = doc.addObject("PartDesign::Pad", "Pad003")
body.addObject(pad4)
pad4.Profile = sketch10
pad4.Length = 1
pad4.Reversed = True

# Sketch on YZ plane
sketch11 = doc.addObject("Sketcher::SketchObject", "Sketch010")
body.addObject(sketch11)
sketch11.AttachmentSupport = (doc.YZ_Plane, [""])
sketch11.MapMode = "FlatFace"
sketch11.AttachmentOffset = App.Placement(V(0, 0, -49), App.Rotation())
sketch11.addGeometry(Part.LineSegment(V(-3.5, 24, 0), V(-3.5, 8, 0)), False)
sketch11.addGeometry(Part.LineSegment(V(-3.5, 8, 0), V(-6, 8, 0)), False)
sketch11.addGeometry(Part.LineSegment(V(-6, 8, 0), V(-6, 13.5, 0)), False)
sketch11.addGeometry(Part.LineSegment(V(-6, 13.5, 0), V(-8.5, 13.5, 0)), False)
sketch11.addGeometry(Part.ArcOfCircle(Part.Circle(V(-8.5, 18.8, 0), V(0, 0, 1), 5.2), math.radians(90), math.radians(270)), False)
sketch11.addGeometry(Part.LineSegment(V(-8.5, 24, 0), V(-3.5, 24, 0)), False)
sketch11.addGeometry(Part.LineSegment(V(-8.5, 16, 0), V(-6, 16, 0)), False)
sketch11.addGeometry(Part.LineSegment(V(-6, 16, 0), V(-6, 21.5, 0)), False)
sketch11.addGeometry(Part.LineSegment(V(-6, 21.5, 0), V(-8.5, 21.5, 0)), False)
sketch11.addGeometry(Part.ArcOfCircle(Part.Circle(V(-8.5, 18.8, 0), V(0, 0, 1), 2.8), math.radians(90), math.radians(270)), False)
sketch11.addGeometry(Part.LineSegment(V(10, 24, 0), V(12.5, 24, 0)), False)
sketch11.addGeometry(Part.LineSegment(V(12.5, 24, 0), V(12.5, 8, 0)), False)
sketch11.addGeometry(Part.LineSegment(V(12.5, 8, 0), V(3.5, 8, 0)), False)
sketch11.addGeometry(Part.LineSegment(V(3.5, 8, 0), V(3.5, 10.5, 0)), False)
sketch11.addGeometry(Part.LineSegment(V(3.5, 10.5, 0), V(10, 10.5, 0)), False)
sketch11.addGeometry(Part.LineSegment(V(10, 10.5, 0), V(10, 24, 0)), False)
sketch11.addConstraint(Sketcher.Constraint("Coincident", 0, 2, 1, 1))
sketch11.addConstraint(Sketcher.Constraint("Coincident", 1, 2, 2, 1))
sketch11.addConstraint(Sketcher.Constraint("Coincident", 2, 2, 3, 1))
sketch11.addConstraint(Sketcher.Constraint("Tangent", 3, 2, 4, 2))
sketch11.addConstraint(Sketcher.Constraint("Tangent", 4, 1, 5, 1))
sketch11.addConstraint(Sketcher.Constraint("Coincident", 5, 2, 0, 1))
sketch11.addConstraint(Sketcher.Constraint("Coincident", 6, 2, 7, 1))
sketch11.addConstraint(Sketcher.Constraint("Coincident", 7, 2, 8, 1))
sketch11.addConstraint(Sketcher.Constraint("Tangent", 8, 2, 9, 1))
sketch11.addConstraint(Sketcher.Constraint("Tangent", 9, 2, 6, 1))
sketch11.addConstraint(Sketcher.Constraint("Coincident", 10, 2, 11, 1))
sketch11.addConstraint(Sketcher.Constraint("Coincident", 11, 2, 12, 1))
sketch11.addConstraint(Sketcher.Constraint("Coincident", 12, 2, 13, 1))
sketch11.addConstraint(Sketcher.Constraint("Coincident", 13, 2, 14, 1))
sketch11.addConstraint(Sketcher.Constraint("Coincident", 14, 2, 15, 1))
sketch11.addConstraint(Sketcher.Constraint("Coincident", 15, 2, 10, 1))
sketch11.addConstraint(Sketcher.Constraint("Vertical", 0))
sketch11.addConstraint(Sketcher.Constraint("Horizontal", 1))
sketch11.addConstraint(Sketcher.Constraint("Vertical", 2))
sketch11.addConstraint(Sketcher.Constraint("Horizontal", 3))
sketch11.addConstraint(Sketcher.Constraint("Horizontal", 5))
sketch11.addConstraint(Sketcher.Constraint("Horizontal", 6))
sketch11.addConstraint(Sketcher.Constraint("Vertical", 7))
sketch11.addConstraint(Sketcher.Constraint("Horizontal", 8))
sketch11.addConstraint(Sketcher.Constraint("Horizontal", 10))
sketch11.addConstraint(Sketcher.Constraint("Vertical", 11))
sketch11.addConstraint(Sketcher.Constraint("Horizontal", 12))
sketch11.addConstraint(Sketcher.Constraint("Vertical", 13))
sketch11.addConstraint(Sketcher.Constraint("Horizontal", 14))
sketch11.addConstraint(Sketcher.Constraint("Vertical", 15))
sketch11.addConstraint(Sketcher.Constraint("Coincident", 9, 3, 4, 3))
sketch11.addConstraint(Sketcher.Constraint("Symmetric", 0, 2, 12, 2, -2))
sketch11.addConstraint(Sketcher.Constraint("Horizontal", 5, 2, 10, 2))
sketch11.addConstraint(Sketcher.Constraint("Vertical", 2, 2, 6, 2))
sketch11.addConstraint(Sketcher.Constraint("Equal", 10, 13))
sketch11.addConstraint(Sketcher.Constraint("DistanceX", -1, 1, 14, 2, 10.0))
sketch11.addConstraint(Sketcher.Constraint("DistanceX", 0, 2, -1, 1, 3.5))
sketch11.addConstraint(Sketcher.Constraint("DistanceX", -1, 1, 10, 2, 12.5))
sketch11.addConstraint(Sketcher.Constraint("DistanceX", 5, 1, 5, 2, 5.0))
sketch11.addConstraint(Sketcher.Constraint("DistanceY", 0, 2, 0, 1, 16.0))
sketch11.addConstraint(Sketcher.Constraint("Radius", 9, 2.75))
sketch11.addConstraint(Sketcher.Constraint("DistanceY", -1, 1, 0, 2, 8.0))
sketch11.addConstraint(Sketcher.Constraint("Radius", 4, 5.244))
sketch11.addConstraint(Sketcher.Constraint("DistanceX", 1, 2, 1, 1, 2.4504))
pad5 = doc.addObject("PartDesign::Pad", "Pad004")
body.addObject(pad5)
pad5.Profile = sketch11
pad5.Length = 1
pad5.Reversed = True

doc.recompute()
